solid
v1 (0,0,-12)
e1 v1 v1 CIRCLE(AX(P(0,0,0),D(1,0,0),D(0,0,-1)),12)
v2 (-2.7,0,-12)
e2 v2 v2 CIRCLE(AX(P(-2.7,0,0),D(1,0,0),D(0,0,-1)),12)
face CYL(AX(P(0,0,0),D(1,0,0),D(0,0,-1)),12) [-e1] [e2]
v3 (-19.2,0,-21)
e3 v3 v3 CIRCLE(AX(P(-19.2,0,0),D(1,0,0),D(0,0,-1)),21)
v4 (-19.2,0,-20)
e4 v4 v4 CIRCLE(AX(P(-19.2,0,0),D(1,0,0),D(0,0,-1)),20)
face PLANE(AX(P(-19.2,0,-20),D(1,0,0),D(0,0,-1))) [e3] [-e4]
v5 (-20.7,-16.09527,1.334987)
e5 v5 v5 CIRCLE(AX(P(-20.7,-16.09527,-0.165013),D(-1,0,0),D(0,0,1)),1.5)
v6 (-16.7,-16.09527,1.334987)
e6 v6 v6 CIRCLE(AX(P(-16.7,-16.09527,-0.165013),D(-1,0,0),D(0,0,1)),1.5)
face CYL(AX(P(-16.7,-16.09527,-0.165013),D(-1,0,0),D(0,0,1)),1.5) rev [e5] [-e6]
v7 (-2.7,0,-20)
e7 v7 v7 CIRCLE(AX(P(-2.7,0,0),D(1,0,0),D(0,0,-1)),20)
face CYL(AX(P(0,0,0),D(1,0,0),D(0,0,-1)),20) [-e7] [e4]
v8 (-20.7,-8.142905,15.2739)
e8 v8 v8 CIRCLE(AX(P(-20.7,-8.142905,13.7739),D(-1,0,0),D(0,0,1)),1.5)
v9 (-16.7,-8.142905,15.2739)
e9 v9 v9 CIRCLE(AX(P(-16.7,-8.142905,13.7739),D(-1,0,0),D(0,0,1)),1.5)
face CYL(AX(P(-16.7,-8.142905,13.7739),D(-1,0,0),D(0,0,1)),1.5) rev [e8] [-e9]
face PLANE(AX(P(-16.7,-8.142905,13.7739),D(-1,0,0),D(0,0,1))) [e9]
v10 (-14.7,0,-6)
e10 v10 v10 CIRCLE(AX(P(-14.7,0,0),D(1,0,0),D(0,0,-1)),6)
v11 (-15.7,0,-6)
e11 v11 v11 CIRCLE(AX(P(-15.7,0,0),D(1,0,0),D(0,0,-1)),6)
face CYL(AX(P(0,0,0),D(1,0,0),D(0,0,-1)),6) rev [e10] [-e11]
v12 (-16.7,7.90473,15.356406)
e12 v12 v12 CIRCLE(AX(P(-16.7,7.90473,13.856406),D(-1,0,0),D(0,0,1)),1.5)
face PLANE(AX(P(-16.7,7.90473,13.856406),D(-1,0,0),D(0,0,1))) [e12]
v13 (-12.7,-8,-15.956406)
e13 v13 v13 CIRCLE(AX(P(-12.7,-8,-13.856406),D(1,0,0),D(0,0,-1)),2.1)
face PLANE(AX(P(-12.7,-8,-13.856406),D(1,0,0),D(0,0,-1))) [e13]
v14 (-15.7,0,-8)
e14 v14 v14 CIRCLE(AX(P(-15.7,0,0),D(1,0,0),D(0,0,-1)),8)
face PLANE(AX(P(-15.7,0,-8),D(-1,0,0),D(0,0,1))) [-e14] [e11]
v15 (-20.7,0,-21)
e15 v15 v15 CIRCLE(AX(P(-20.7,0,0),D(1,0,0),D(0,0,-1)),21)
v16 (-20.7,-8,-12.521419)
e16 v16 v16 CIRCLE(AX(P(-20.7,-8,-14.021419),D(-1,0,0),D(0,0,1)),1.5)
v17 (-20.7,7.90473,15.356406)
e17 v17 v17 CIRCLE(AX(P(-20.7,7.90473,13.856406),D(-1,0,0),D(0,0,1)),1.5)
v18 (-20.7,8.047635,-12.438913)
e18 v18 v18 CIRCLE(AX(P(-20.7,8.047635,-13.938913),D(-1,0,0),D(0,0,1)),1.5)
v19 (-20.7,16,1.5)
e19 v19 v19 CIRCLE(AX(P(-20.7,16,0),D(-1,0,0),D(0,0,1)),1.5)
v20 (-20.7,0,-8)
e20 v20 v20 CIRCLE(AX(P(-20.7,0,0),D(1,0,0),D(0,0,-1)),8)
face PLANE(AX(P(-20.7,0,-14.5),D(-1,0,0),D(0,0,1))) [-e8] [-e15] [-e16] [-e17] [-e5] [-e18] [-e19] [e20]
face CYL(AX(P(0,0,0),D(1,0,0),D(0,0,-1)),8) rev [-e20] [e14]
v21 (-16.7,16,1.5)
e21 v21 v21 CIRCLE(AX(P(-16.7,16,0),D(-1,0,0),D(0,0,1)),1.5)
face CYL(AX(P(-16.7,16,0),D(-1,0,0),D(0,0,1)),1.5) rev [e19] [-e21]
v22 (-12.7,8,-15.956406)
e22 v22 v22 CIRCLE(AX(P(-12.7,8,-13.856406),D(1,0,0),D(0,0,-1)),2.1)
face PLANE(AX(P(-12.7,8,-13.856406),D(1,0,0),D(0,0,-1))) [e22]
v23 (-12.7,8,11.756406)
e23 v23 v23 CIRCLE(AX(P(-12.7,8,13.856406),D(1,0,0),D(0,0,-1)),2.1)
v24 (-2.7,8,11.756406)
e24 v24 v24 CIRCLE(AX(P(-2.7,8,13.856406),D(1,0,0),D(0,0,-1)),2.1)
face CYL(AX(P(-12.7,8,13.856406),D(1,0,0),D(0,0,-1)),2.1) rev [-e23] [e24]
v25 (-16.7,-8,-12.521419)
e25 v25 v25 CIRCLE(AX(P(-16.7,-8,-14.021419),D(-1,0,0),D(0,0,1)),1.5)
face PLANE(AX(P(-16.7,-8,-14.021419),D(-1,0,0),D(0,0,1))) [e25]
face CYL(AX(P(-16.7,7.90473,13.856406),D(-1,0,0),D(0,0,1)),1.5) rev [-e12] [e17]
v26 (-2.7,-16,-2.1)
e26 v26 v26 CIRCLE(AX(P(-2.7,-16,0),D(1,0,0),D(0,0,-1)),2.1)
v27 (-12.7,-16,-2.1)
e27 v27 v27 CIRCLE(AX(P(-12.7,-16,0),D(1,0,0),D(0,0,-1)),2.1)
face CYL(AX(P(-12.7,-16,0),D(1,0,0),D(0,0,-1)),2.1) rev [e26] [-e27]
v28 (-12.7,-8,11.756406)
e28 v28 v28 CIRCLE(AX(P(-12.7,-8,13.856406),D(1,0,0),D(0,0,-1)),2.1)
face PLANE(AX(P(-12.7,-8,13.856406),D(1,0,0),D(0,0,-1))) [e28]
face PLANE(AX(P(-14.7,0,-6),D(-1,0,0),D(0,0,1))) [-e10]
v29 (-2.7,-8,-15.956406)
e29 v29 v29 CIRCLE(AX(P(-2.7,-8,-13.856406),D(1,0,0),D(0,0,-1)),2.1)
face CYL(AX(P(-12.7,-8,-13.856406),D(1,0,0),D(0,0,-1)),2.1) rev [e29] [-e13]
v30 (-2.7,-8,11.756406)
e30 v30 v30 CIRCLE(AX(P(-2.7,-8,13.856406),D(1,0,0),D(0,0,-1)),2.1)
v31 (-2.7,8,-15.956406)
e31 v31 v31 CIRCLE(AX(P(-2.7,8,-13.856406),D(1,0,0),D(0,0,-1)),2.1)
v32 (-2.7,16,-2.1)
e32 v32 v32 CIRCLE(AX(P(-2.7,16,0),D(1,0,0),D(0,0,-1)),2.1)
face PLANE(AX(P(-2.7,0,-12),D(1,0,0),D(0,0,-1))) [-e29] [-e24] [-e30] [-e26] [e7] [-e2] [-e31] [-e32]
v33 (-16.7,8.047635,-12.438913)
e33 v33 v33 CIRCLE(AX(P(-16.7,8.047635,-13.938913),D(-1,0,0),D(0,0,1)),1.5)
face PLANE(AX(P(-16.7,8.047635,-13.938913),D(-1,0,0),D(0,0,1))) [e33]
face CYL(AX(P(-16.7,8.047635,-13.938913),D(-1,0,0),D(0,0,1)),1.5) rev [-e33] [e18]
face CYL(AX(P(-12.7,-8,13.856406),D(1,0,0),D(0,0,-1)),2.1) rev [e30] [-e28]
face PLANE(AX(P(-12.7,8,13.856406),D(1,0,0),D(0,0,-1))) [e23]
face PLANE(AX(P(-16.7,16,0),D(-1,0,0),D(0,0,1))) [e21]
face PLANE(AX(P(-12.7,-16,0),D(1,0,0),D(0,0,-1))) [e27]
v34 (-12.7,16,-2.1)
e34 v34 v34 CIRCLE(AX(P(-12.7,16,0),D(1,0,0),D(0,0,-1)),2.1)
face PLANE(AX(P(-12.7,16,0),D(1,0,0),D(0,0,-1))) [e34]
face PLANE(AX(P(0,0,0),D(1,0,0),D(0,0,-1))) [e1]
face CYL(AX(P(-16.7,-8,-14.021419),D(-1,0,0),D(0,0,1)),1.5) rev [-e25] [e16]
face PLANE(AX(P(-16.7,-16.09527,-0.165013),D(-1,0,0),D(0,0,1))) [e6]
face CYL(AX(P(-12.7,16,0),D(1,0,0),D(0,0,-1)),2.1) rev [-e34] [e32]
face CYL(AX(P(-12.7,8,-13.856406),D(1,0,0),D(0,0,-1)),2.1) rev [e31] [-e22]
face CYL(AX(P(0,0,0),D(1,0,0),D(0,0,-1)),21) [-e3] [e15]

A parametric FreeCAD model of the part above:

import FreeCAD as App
import Part
import Sketcher
from FreeCAD import Vector
Q = App.Units.Quantity

doc = App.newDocument("Part")
body = doc.addObject("PartDesign::Body", "Body")

# Sketch on XZ plane
sketch1 = body.newObject("Sketcher::SketchObject", "Sketch")
sketch1.AttachmentSupport = (doc.getObject("XZ_Plane"), [""])
sketch1.MapMode = "FlatFace"
sketch1.addGeometry(Part.LineSegment(Vector(0, 0, 0), Vector(0, -12, 0)), False)
sketch1.addGeometry(Part.LineSegment(Vector(0, -12, 0), Vector(-2.7, -12, 0)), False)
sketch1.addGeometry(Part.LineSegment(Vector(-2.7, -12, 0), Vector(-2.7, -20, 0)), False)
sketch1.addGeometry(Part.LineSegment(Vector(-2.7, -20, 0), Vector(-19.2, -20, 0)), False)
sketch1.addGeometry(Part.LineSegment(Vector(-19.2, -20, 0), Vector(-19.2, -21, 0)), False)
sketch1.addGeometry(Part.LineSegment(Vector(-19.2, -21, 0), Vector(-20.7, -21, 0)), False)
sketch1.addGeometry(Part.LineSegment(Vector(-20.7, -21, 0), Vector(-20.7, -8, 0)), False)
sketch1.addGeometry(Part.LineSegment(Vector(-20.7, -8, 0), Vector(-15.7, -8, 0)), False)
sketch1.addGeometry(Part.LineSegment(Vector(-15.7, -8, 0), Vector(-15.7, -6, 0)), False)
sketch1.addGeometry(Part.LineSegment(Vector(-15.7, -6, 0), Vector(-14.7, -6, 0)), False)
sketch1.addGeometry(Part.LineSegment(Vector(-14.7, -6, 0), Vector(-14.7, 0, 0)), False)
sketch1.addGeometry(Part.LineSegment(Vector(-14.7, 0, 0), Vector(0, 0, 0)), False)
sketch1.addConstraint(Sketcher.Constraint("Coincident", 0, 2, 1, 1))
sketch1.addConstraint(Sketcher.Constraint("Coincident", 1, 2, 2, 1))
sketch1.addConstraint(Sketcher.Constraint("Coincident", 2, 2, 3, 1))
sketch1.addConstraint(Sketcher.Constraint("Coincident", 3, 2, 4, 1))
sketch1.addConstraint(Sketcher.Constraint("Coincident", 4, 2, 5, 1))
sketch1.addConstraint(Sketcher.Constraint("Coincident", 5, 2, 6, 1))
sketch1.addConstraint(Sketcher.Constraint("Coincident", 6, 2, 7, 1))
sketch1.addConstraint(Sketcher.Constraint("Coincident", 7, 2, 8, 1))
sketch1.addConstraint(Sketcher.Constraint("Coincident", 8, 2, 9, 1))
sketch1.addConstraint(Sketcher.Constraint("Coincident", 9, 2, 10, 1))
sketch1.addConstraint(Sketcher.Constraint("Coincident", 10, 2, 11, 1))
sketch1.addConstraint(Sketcher.Constraint("Coincident", 11, 2, 0, 1))
sketch1.addConstraint(Sketcher.Constraint("Vertical", 0))
sketch1.addConstraint(Sketcher.Constraint("Horizontal", 1))
sketch1.addConstraint(Sketcher.Constraint("Vertical", 2))
sketch1.addConstraint(Sketcher.Constraint("Horizontal", 3))
sketch1.addConstraint(Sketcher.Constraint("Vertical", 4))
sketch1.addConstraint(Sketcher.Constraint("Horizontal", 5))
sketch1.addConstraint(Sketcher.Constraint("Vertical", 6))
sketch1.addConstraint(Sketcher.Constraint("Horizontal", 7))
sketch1.addConstraint(Sketcher.Constraint("Vertical", 8))
sketch1.addConstraint(Sketcher.Constraint("Horizontal", 9))
sketch1.addConstraint(Sketcher.Constraint("Vertical", 10))
sketch1.addConstraint(Sketcher.Constraint("Horizontal", 11))
sketch1.addConstraint(Sketcher.Constraint("Coincident", 11, 2, -1, 1))
sketch1.addConstraint(Sketcher.Constraint("Equal", 9, 4))
sketch1.addConstraint(Sketcher.Constraint("DistanceX", 7, 1, 7, 2, Q("5 mm")))
sketch1.addConstraint(Sketcher.Constraint("DistanceX", 9, 1, 9, 2, Q("1 mm")))
sketch1.addConstraint(Sketcher.Constraint("DistanceY", 0, 2, 0, 1, Q("12 mm")))
sketch1.addConstraint(Sketcher.Constraint("DistanceY", 2, 2, 2, 1, Q("8 mm")))
sketch1.addConstraint(Sketcher.Constraint("DistanceY", 6, 1, 6, 2, Q("13 mm")))
sketch1.addConstraint(Sketcher.Constraint("DistanceY", 8, 1, 8, 2, Q("2 mm")))
sketch1.addConstraint(Sketcher.Constraint("DistanceX", 1, 2, 1, 1, Q("2.7 mm")))
sketch1.addConstraint(Sketcher.Constraint("DistanceX", 3, 2, 3, 1, Q("16.5 mm")))
sketch1.addConstraint(Sketcher.Constraint("DistanceX", 5, 2, 5, 1, Q("1.5 mm")))
revolution = body.newObject("PartDesign::Revolution", "Revolution")
revolution.Profile = sketch1
revolution.ReferenceAxis = (sketch1, ["H_Axis"])
revolution.Angle = 360

# Sketch on YZ plane
sketch2 = body.newObject("Sketcher::SketchObject", "Sketch001")
sketch2.AttachmentSupport = (doc.getObject("YZ_Plane"), [""])
sketch2.MapMode = "FlatFace"
sketch2.AttachmentOffset = App.Placement(Vector(0, 0, -20.7), App.Rotation())
sketch2.addGeometry(Part.Circle(Vector(16, 0, 0), Vector(0, 0, 1), 1.5), False)
sketch2.addGeometry(Part.Circle(Vector(7.9, 13.9, 0), Vector(0, 0, 1), 1.5), False)
sketch2.addGeometry(Part.Circle(Vector(-8.1, 13.8, 0), Vector(0, 0, 1), 1.5), False)
sketch2.addGeometry(Part.Circle(Vector(-16.1, -0.2, 0), Vector(0, 0, 1), 1.5), False)
sketch2.addGeometry(Part.Circle(Vector(-8, -14, 0), Vector(0, 0, 1), 1.5), False)
sketch2.addGeometry(Part.Circle(Vector(8, -13.9, 0), Vector(0, 0, 1), 1.5), False)
sketch2.addConstraint(Sketcher.Constraint("Equal", 0, 1))
sketch2.addConstraint(Sketcher.Constraint("Equal", 1, 2))
sketch2.addConstraint(Sketcher.Constraint("Equal", 2, 3))
sketch2.addConstraint(Sketcher.Constraint("Equal", 3, 4))
sketch2.addConstraint(Sketcher.Constraint("Equal", 4, 5))
sketch2.addConstraint(Sketcher.Constraint("PointOnObject", 0, 3, -1))
sketch2.addConstraint(Sketcher.Constraint("Diameter", 0, Q("3 mm")))
sketch2.addConstraint(Sketcher.Constraint("DistanceX", -1, 1, 0, 3, Q("16 mm")))
sketch2.addConstraint(Sketcher.Constraint("DistanceX", 4, 3, -1, 1, Q("8 mm")))
sketch2.addConstraint(Sketcher.Constraint("DistanceX", 3, 3, 1, 3, Q("24 mm")))
sketch2.addConstraint(Sketcher.Constraint("DistanceY", -1, 1, 2, 3, Q("13.7739 mm")))
sketch2.addConstraint(Sketcher.Constraint("DistanceY", 5, 3, 3, 3, Q("13.7739 mm")))
sketch2.addConstraint(Sketcher.Constraint("DistanceX", -1, 1, 1, 3, Q("7.90473 mm")))
sketch2.addConstraint(Sketcher.Constraint("DistanceY", 4, 3, -1, 1, Q("14.021419 mm")))
sketch2.addConstraint(Sketcher.Constraint("DistanceY", 3, 3, 1, 3, Q("14.021419 mm")))
sketch2.addConstraint(Sketcher.Constraint("DistanceX", 2, 3, 5, 3, Q("16.19054 mm")))
sketch2.addConstraint(Sketcher.Constraint("DistanceY", -1, 1, 1, 3, Q("13.856406 mm")))
sketch2.addConstraint(Sketcher.Constraint("DistanceX", 2, 3, -1, 1, Q("8.142905 mm")))
pocket1 = body.newObject("PartDesign::Pocket", "Pocket")
pocket1.Profile = sketch2
pocket1.Length = 4
pocket1.Reversed = True

# Sketch on YZ plane
sketch3 = body.newObject("Sketcher::SketchObject", "Sketch002")
sketch3.AttachmentSupport = (doc.getObject("YZ_Plane"), [""])
sketch3.MapMode = "FlatFace"
sketch3.AttachmentOffset = App.Placement(Vector(0, 0, -2.7), App.Rotation())
sketch3.addGeometry(Part.Circle(Vector(16, 0, 0), Vector(0, 0, 1), 2.1), False)
sketch3.addGeometry(Part.Circle(Vector(8, -13.9, 0), Vector(0, 0, 1), 2.1), False)
sketch3.addGeometry(Part.Circle(Vector(-8, -13.9, 0), Vector(0, 0, 1), 2.1), False)
sketch3.addGeometry(Part.Circle(Vector(-16, 0, 0), Vector(0, 0, 1), 2.1), False)
sketch3.addGeometry(Part.Circle(Vector(-8, 13.9, 0), Vector(0, 0, 1), 2.1), False)
sketch3.addGeometry(Part.Circle(Vector(8, 13.9, 0), Vector(0, 0, 1), 2.1), False)
sketch3.addConstraint(Sketcher.Constraint("Equal", 0, 1))
sketch3.addConstraint(Sketcher.Constraint("Equal", 1, 2))
sketch3.addConstraint(Sketcher.Constraint("Equal", 2, 3))
sketch3.addConstraint(Sketcher.Constraint("Equal", 3, 4))
sketch3.addConstraint(Sketcher.Constraint("Equal", 4, 5))
sketch3.addConstraint(Sketcher.Constraint("Symmetric", 0, 3, 3, 3, -1, 1))
sketch3.addConstraint(Sketcher.Constraint("Symmetric", 1, 3, 4, 3, -1, 1))
sketch3.addConstraint(Sketcher.Constraint("Symmetric", 2, 3, 5, 3, -1, 1))
sketch3.addConstraint(Sketcher.Constraint("Symmetric", 1, 3, 2, 3, -2))
sketch3.addConstraint(Sketcher.Constraint("PointOnObject", 0, 3, -1))
sketch3.addConstraint(Sketcher.Constraint("Diameter", 0, Q("4.2 mm")))
sketch3.addConstraint(Sketcher.Constraint("DistanceX", -1, 1, 0, 3, Q("16 mm")))
sketch3.addConstraint(Sketcher.Constraint("DistanceX", -1, 1, 1, 3, Q("8 mm")))
sketch3.addConstraint(Sketcher.Constraint("DistanceY", 1, 3, -1, 1, Q("13.856406 mm")))
pocket2 = body.newObject("PartDesign::Pocket", "Pocket001")
pocket2.Profile = sketch3
pocket2.Length = 10

doc.recompute()
